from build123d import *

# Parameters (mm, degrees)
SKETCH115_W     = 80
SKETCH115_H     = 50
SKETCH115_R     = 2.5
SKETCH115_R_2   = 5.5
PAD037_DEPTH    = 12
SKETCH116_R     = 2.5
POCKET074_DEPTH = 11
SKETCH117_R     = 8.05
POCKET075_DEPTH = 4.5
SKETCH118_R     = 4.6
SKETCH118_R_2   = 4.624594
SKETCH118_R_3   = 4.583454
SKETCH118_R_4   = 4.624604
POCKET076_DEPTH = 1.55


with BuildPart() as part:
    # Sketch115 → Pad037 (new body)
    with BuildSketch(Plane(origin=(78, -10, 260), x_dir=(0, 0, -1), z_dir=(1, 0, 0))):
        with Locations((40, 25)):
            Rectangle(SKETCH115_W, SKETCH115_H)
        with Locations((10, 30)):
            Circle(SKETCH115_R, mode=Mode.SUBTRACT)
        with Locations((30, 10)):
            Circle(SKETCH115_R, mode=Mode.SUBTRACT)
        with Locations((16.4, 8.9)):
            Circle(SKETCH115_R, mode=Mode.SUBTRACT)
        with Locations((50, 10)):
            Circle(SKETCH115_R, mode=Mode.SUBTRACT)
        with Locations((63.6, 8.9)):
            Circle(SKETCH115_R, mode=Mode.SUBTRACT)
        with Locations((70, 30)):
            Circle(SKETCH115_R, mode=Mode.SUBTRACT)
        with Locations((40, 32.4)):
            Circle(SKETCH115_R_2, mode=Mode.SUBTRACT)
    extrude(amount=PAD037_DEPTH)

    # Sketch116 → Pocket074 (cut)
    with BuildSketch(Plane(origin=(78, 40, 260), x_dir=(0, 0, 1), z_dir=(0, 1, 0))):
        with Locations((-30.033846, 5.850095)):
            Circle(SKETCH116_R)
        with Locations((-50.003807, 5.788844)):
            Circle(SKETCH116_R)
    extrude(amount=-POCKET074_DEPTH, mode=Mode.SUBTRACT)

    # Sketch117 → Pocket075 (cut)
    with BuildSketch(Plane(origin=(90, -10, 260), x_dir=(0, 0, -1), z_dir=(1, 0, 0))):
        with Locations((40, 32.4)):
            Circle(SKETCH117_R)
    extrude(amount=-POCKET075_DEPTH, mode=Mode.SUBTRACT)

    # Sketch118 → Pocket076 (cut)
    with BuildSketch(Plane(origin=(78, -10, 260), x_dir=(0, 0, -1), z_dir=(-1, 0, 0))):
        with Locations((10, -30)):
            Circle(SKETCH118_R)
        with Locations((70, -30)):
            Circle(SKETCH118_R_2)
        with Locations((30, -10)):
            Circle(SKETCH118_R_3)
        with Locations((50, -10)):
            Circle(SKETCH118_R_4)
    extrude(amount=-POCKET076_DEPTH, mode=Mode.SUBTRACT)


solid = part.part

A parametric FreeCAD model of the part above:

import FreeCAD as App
import Part
import Sketcher

V = App.Vector

doc = App.newDocument("Part")
body = doc.addObject("PartDesign::Body", "Body")

# Sketch on YZ plane
sketch1 = doc.addObject("Sketcher::SketchObject", "Sketch")
body.addObject(sketch1)
sketch1.AttachmentSupport = (doc.YZ_Plane, [""])
sketch1.MapMode = "FlatFace"
sketch1.AttachmentOffset = App.Placement(V(0, 0, 78), App.Rotation())
sketch1.addGeometry(Part.LineSegment(V(40, 260, 0), V(-10, 260, 0)), False)
sketch1.addGeometry(Part.LineSegment(V(-10, 260, 0), V(-10, 180, 0)), False)
sketch1.addGeometry(Part.LineSegment(V(-10, 180, 0), V(40, 180, 0)), False)
sketch1.addGeometry(Part.LineSegment(V(40, 180, 0), V(40, 260, 0)), False)
sketch1.addGeometry(Part.Circle(V(-1.1, 243.6, 0), V(0, 0, 1), 2.5), False)
sketch1.addGeometry(Part.Circle(V(0, 230, 0), V(0, 0, 1), 2.5), False)
sketch1.addGeometry(Part.Circle(V(0, 210, 0), V(0, 0, 1), 2.5), False)
sketch1.addGeometry(Part.Circle(V(-1.1, 196.4, 0), V(0, 0, 1), 2.5), False)
sketch1.addGeometry(Part.Circle(V(20, 250, 0), V(0, 0, 1), 2.5), False)
sketch1.addGeometry(Part.Circle(V(20, 190, 0), V(0, 0, 1), 2.5), False)
sketch1.addGeometry(Part.Circle(V(22.4, 220, 0), V(0, 0, 1), 5.5), False)
sketch1.addConstraint(Sketcher.Constraint("Coincident", 0, 2, 1, 1))
sketch1.addConstraint(Sketcher.Constraint("Coincident", 1, 2, 2, 1))
sketch1.addConstraint(Sketcher.Constraint("Coincident", 2, 2, 3, 1))
sketch1.addConstraint(Sketcher.Constraint("Coincident", 3, 2, 0, 1))
sketch1.addConstraint(Sketcher.Constraint("Horizontal", 0))
sketch1.addConstraint(Sketcher.Constraint("Vertical", 1))
sketch1.addConstraint(Sketcher.Constraint("Horizontal", 2))
sketch1.addConstraint(Sketcher.Constraint("Vertical", 3))
sketch1.addConstraint(Sketcher.Constraint("Equal", 4, 5))
sketch1.addConstraint(Sketcher.Constraint("Equal", 5, 6))
sketch1.addConstraint(Sketcher.Constraint("Equal", 6, 7))
sketch1.addConstraint(Sketcher.Constraint("Equal", 7, 8))
sketch1.addConstraint(Sketcher.Constraint("Equal", 8, 9))
sketch1.addConstraint(Sketcher.Constraint("PointOnObject", 5, 3, -2))
sketch1.addConstraint(Sketcher.Constraint("PointOnObject", 6, 3, -2))
sketch1.addConstraint(Sketcher.Constraint("Vertical", 4, 3, 7, 3))
sketch1.addConstraint(Sketcher.Constraint("Vertical", 8, 3, 9, 3))
sketch1.addConstraint(Sketcher.Constraint("Diameter", 4, 5.0))
sketch1.addConstraint(Sketcher.Constraint("Diameter", 10, 11.0))
sketch1.addConstraint(Sketcher.Constraint("DistanceX", 0, 2, 0, 1, 50.0))
sketch1.addConstraint(Sketcher.Constraint("DistanceY", 1, 2, 1, 1, 80.0))
sketch1.addConstraint(Sketcher.Constraint("DistanceY", -1, 1, 5, 3, 230.0))
sketch1.addConstraint(Sketcher.Constraint("DistanceY", -1, 1, 6, 3, 210.0))
sketch1.addConstraint(Sketcher.Constraint("DistanceX", -1, 1, 8, 3, 20.0))
sketch1.addConstraint(Sketcher.Constraint("DistanceY", -1, 1, 8, 3, 250.0))
sketch1.addConstraint(Sketcher.Constraint("DistanceY", -1, 1, 9, 3, 190.0))
sketch1.addConstraint(Sketcher.Constraint("DistanceY", -1, 1, 10, 3, 220.0))
sketch1.addConstraint(Sketcher.Constraint("DistanceX", 0, 2, -1, 1, 10.0))
sketch1.addConstraint(Sketcher.Constraint("DistanceY", -1, 1, 0, 2, 260.0))
sketch1.addConstraint(Sketcher.Constraint("DistanceX", 4, 3, -1, 1, 1.1))
sketch1.addConstraint(Sketcher.Constraint("DistanceY", -1, 1, 4, 3, 243.6))
sketch1.addConstraint(Sketcher.Constraint("DistanceY", -1, 1, 7, 3, 196.4))
sketch1.addConstraint(Sketcher.Constraint("DistanceX", -1, 1, 10, 3, 22.4))
pad1 = doc.addObject("PartDesign::Pad", "Pad")
body.addObject(pad1)
pad1.Profile = sketch1
pad1.Length = 12

# Sketch on XZ plane
sketch2 = doc.addObject("Sketcher::SketchObject", "Sketch001")
body.addObject(sketch2)
sketch2.AttachmentSupport = (doc.XZ_Plane, [""])
sketch2.MapMode = "FlatFace"
sketch2.AttachmentOffset = App.Placement(V(0, 0, -40), App.Rotation())
sketch2.addGeometry(Part.Circle(V(83.9, 230, 0), V(0, 0, 1), 2.5), False)
sketch2.addGeometry(Part.Circle(V(83.8, 210, 0), V(0, 0, 1), 2.5), False)
sketch2.addConstraint(Sketcher.Constraint("Equal", 0, 1))
sketch2.addConstraint(Sketcher.Constraint("Diameter", 0, 5.0))
sketch2.addConstraint(Sketcher.Constraint("DistanceX", 1, 3, 0, 3, 0.061251))
sketch2.addConstraint(Sketcher.Constraint("DistanceY", 1, 3, 0, 3, 19.969961))
sketch2.addConstraint(Sketcher.Constraint("DistanceX", -1, 1, 0, 3, 83.850095))
sketch2.addConstraint(Sketcher.Constraint("DistanceY", -1, 1, 0, 3, 229.966154))
pocket1 = doc.addObject("PartDesign::Pocket", "Pocket")
body.addObject(pocket1)
pocket1.Profile = sketch2
pocket1.Length = 11
pocket1.Reversed = True

# Sketch on YZ plane
sketch3 = doc.addObject("Sketcher::SketchObject", "Sketch002")
body.addObject(sketch3)
sketch3.AttachmentSupport = (doc.YZ_Plane, [""])
sketch3.MapMode = "FlatFace"
sketch3.AttachmentOffset = App.Placement(V(0, 0, 90), App.Rotation())
sketch3.addGeometry(Part.Circle(V(22, 220, 0), V(0, 0, 1), 8), False)
sketch3.addConstraint(Sketcher.Constraint("Diameter", 0, 16.1))
sketch3.addConstraint(Sketcher.Constraint("DistanceY", -1, 1, 0, 3, 220.0))
sketch3.addConstraint(Sketcher.Constraint("DistanceX", -1, 1, 0, 3, 22.4))
pocket2 = doc.addObject("PartDesign::Pocket", "Pocket001")
body.addObject(pocket2)
pocket2.Profile = sketch3
pocket2.Length = 4.5

# Sketch on YZ plane
sketch4 = doc.addObject("Sketcher::SketchObject", "Sketch003")
body.addObject(sketch4)
sketch4.AttachmentSupport = (doc.YZ_Plane, [""])
sketch4.MapMode = "FlatFace"
sketch4.AttachmentOffset = App.Placement(V(0, 0, 78), App.Rotation())
sketch4.addGeometry(Part.Circle(V(20, 250, 0), V(0, 0, 1), 4.6), False)
sketch4.addGeometry(Part.Circle(V(20, 190, 0), V(0, 0, 1), 4.6), False)
sketch4.addGeometry(Part.Circle(V(0, 230, 0), V(0, 0, 1), 4.6), False)
sketch4.addGeometry(Part.Circle(V(0, 210, 0), V(0, 0, 1), 4.6), False)
sketch4.addConstraint(Sketcher.Constraint("PointOnObject", 2, 3, -2))
sketch4.addConstraint(Sketcher.Constraint("PointOnObject", 3, 3, -2))
sketch4.addConstraint(Sketcher.Constraint("Vertical", 0, 3, 1, 3))
sketch4.addConstraint(Sketcher.Constraint("Diameter", 0, 9.2))
sketch4.addConstraint(Sketcher.Constraint("DistanceX", -1, 1, 0, 3, 20.0))
sketch4.addConstraint(Sketcher.Constraint("DistanceY", -1, 1, 0, 3, 250.0))
sketch4.addConstraint(Sketcher.Constraint("DistanceY", -1, 1, 1, 3, 190.0))
sketch4.addConstraint(Sketcher.Constraint("DistanceY", -1, 1, 2, 3, 230.0))
sketch4.addConstraint(Sketcher.Constraint("DistanceY", -1, 1, 3, 3, 210.0))
sketch4.addConstraint(Sketcher.Constraint("Diameter", 1, 9.249188))
sketch4.addConstraint(Sketcher.Constraint("Diameter", 2, 9.166908))
sketch4.addConstraint(Sketcher.Constraint("Diameter", 3, 9.249208))
pocket3 = doc.addObject("PartDesign::Pocket", "Pocket002")
body.addObject(pocket3)
pocket3.Profile = sketch4
pocket3.Length = 1.55
pocket3.Reversed = True

doc.recompute()
